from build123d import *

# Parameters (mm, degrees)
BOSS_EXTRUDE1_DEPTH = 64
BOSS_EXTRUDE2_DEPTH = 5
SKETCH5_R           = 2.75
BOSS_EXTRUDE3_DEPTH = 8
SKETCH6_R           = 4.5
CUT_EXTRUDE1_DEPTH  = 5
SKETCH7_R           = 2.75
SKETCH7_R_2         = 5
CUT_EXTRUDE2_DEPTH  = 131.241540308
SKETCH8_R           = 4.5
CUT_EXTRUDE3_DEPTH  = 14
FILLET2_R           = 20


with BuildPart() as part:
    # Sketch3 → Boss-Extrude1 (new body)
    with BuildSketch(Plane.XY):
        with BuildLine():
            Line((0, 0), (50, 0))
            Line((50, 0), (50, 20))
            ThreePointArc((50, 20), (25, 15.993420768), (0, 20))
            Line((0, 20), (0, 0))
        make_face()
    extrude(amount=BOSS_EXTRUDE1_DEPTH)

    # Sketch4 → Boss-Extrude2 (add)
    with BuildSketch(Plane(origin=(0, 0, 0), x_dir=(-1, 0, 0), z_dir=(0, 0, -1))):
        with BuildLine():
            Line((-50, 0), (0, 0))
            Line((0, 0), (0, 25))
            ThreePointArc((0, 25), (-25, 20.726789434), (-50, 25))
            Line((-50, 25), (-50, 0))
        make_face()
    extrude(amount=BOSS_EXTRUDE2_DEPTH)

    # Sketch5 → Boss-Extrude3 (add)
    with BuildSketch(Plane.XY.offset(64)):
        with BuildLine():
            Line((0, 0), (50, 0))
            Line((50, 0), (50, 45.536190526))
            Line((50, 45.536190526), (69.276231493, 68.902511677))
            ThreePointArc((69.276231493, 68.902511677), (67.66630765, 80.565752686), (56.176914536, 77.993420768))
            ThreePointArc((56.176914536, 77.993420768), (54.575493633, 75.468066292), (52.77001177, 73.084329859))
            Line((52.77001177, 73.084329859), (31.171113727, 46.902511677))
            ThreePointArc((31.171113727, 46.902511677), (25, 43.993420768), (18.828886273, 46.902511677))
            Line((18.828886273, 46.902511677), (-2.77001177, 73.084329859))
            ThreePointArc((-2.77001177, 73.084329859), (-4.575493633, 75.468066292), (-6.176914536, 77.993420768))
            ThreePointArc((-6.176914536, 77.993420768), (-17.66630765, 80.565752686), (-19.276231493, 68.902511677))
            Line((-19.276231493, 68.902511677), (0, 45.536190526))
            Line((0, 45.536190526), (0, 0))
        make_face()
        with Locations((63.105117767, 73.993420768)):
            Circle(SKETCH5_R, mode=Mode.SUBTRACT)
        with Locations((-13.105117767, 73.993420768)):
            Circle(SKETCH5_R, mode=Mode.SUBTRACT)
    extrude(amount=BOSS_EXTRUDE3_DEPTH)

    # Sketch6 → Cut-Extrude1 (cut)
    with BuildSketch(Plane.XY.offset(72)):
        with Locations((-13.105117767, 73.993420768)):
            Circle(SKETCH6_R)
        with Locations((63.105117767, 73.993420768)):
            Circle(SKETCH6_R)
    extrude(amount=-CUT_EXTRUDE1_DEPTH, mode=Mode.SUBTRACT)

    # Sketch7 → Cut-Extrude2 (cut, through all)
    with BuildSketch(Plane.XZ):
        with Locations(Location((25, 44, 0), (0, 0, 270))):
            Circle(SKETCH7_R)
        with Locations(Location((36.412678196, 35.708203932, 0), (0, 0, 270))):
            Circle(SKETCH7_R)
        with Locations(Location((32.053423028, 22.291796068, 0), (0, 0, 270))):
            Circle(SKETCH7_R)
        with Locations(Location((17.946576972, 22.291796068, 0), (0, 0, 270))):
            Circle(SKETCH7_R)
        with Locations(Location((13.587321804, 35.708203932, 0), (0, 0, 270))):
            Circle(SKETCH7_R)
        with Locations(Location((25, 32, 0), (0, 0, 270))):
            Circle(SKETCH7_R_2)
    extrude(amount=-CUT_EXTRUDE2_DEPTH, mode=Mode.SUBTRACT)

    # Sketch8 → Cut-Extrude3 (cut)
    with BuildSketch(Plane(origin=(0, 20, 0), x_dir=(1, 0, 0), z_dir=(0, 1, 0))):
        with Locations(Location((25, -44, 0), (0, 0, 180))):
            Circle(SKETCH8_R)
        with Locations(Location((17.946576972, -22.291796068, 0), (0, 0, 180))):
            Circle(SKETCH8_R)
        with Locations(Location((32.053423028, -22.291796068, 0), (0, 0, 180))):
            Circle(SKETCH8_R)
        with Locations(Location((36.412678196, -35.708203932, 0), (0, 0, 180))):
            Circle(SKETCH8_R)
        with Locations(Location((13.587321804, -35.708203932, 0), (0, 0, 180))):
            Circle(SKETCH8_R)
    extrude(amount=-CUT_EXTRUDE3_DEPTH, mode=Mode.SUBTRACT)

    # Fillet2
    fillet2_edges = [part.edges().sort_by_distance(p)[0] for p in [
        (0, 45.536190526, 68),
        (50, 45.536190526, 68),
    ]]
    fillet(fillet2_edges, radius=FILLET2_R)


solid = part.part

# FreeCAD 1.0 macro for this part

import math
import FreeCAD as App
import Part
import Sketcher
from FreeCAD import Vector


def edges_at(feature, points):
    """Names of the edges that pass closest to the given points."""
    edges = feature.Shape.Edges
    near = lambda p: min(range(len(edges)), key=lambda i: edges[i].distToShape(Part.Vertex(*p))[0])
    return sorted({f"Edge{near(p) + 1}" for p in points})

doc = App.newDocument("Part")
body = doc.addObject("PartDesign::Body", "Body")

# Sketch on XY plane
sketch1 = body.newObject("Sketcher::SketchObject", "Sketch")
sketch1.AttachmentSupport = (doc.getObject("XY_Plane"), [""])
sketch1.MapMode = "FlatFace"
sketch1.addGeometry([
    Part.LineSegment(Vector(0, 0, 0), Vector(50, 0, 0)),
    Part.LineSegment(Vector(50, 0, 0), Vector(50, 20, 0)),
    Part.ArcOfCircle(Part.Circle(Vector(25, 96, 0), Vector(0, 0, 1), 80), math.radians(-108), math.radians(-72)),
    Part.LineSegment(Vector(0, 20, 0), Vector(0, 0, 0)),
], False)
sketch1.addConstraint([
    Sketcher.Constraint("Coincident", 0, 2, 1, 1),
    Sketcher.Constraint("Coincident", 1, 2, 2, 2),
    Sketcher.Constraint("Coincident", 2, 1, 3, 1),
    Sketcher.Constraint("Coincident", 3, 2, 0, 1),
    Sketcher.Constraint("Horizontal", 0),
    Sketcher.Constraint("Vertical", 1),
    Sketcher.Constraint("Vertical", 3),
    Sketcher.Constraint("Coincident", 3, 2, -1, 1),
    Sketcher.Constraint("Horizontal", 1, 2, 2, 1),
    Sketcher.Constraint("Radius", 2, 80.0),
    Sketcher.Constraint("DistanceX", 0, 1, 0, 2, 50.0),
    Sketcher.Constraint("DistanceY", 1, 1, 1, 2, 20.0),
])
pad1 = body.newObject("PartDesign::Pad", "Pad")
pad1.Profile = sketch1
pad1.Length = 64

# Sketch on XY plane
sketch2 = body.newObject("Sketcher::SketchObject", "Sketch001")
sketch2.AttachmentSupport = (doc.getObject("XY_Plane"), [""])
sketch2.MapMode = "FlatFace"
sketch2.addGeometry([
    Part.LineSegment(Vector(50, 0, 0), Vector(0, 0, 0)),
    Part.LineSegment(Vector(0, 0, 0), Vector(0, 25, 0)),
    Part.ArcOfCircle(Part.Circle(Vector(25, 96, 0), Vector(0, 0, 1), 75), math.radians(-109), math.radians(-71)),
    Part.LineSegment(Vector(50, 25, 0), Vector(50, 0, 0)),
], False)
sketch2.addConstraint([
    Sketcher.Constraint("Coincident", 0, 2, 1, 1),
    Sketcher.Constraint("Coincident", 1, 2, 2, 1),
    Sketcher.Constraint("Coincident", 2, 2, 3, 1),
    Sketcher.Constraint("Coincident", 3, 2, 0, 1),
    Sketcher.Constraint("Horizontal", 0),
    Sketcher.Constraint("Vertical", 1),
    Sketcher.Constraint("Vertical", 3),
    Sketcher.Constraint("Coincident", 0, 2, -1, 1),
    Sketcher.Constraint("Horizontal", 1, 2, 2, 2),
    Sketcher.Constraint("DistanceX", 0, 2, 0, 1, 50.0),
    Sketcher.Constraint("DistanceY", 1, 1, 1, 2, 25.0),
    Sketcher.Constraint("Radius", 2, 75.266631),
])
pad2 = body.newObject("PartDesign::Pad", "Pad001")
pad2.Profile = sketch2
pad2.Length = 5
pad2.Reversed = True

# Sketch on XY plane
sketch3 = body.newObject("Sketcher::SketchObject", "Sketch002")
sketch3.AttachmentSupport = (doc.getObject("XY_Plane"), [""])
sketch3.MapMode = "FlatFace"
sketch3.AttachmentOffset = App.Placement(Vector(0, 0, 64), App.Rotation())
sketch3.addGeometry([
    Part.LineSegment(Vector(0, 0, 0), Vector(50, 0, 0)),  # 0
    Part.LineSegment(Vector(50, 0, 0), Vector(50, 45.5, 0)),  # 1
    Part.LineSegment(Vector(50, 45.5, 0), Vector(69.3, 68.9, 0)),  # 2
    Part.ArcOfCircle(Part.Circle(Vector(63.1, 74, 0), Vector(0, 0, 1), 8), math.radians(-40), math.radians(150)),  # 3
    Part.ArcOfCircle(Part.Circle(Vector(25, 96, 0), Vector(0, 0, 1), 36), math.radians(-39.52), math.radians(-30)),  # 4
    Part.LineSegment(Vector(52.8, 73.1, 0), Vector(31.2, 46.9, 0)),  # 5
    Part.ArcOfCircle(Part.Circle(Vector(25, 52, 0), Vector(0, 0, 1), 8), math.radians(-140), math.radians(-40)),  # 6
    Part.LineSegment(Vector(18.8, 46.9, 0), Vector(-2.8, 73.1, 0)),  # 7
    Part.ArcOfCircle(Part.Circle(Vector(25, 96, 0), Vector(0, 0, 1), 36), math.radians(-150), math.radians(-140.48)),  # 8
    Part.ArcOfCircle(Part.Circle(Vector(-13.1, 74, 0), Vector(0, 0, 1), 8), math.radians(30), math.radians(220)),  # 9
    Part.LineSegment(Vector(-19.3, 68.9, 0), Vector(0, 45.5, 0)),  # 10
    Part.LineSegment(Vector(0, 45.5, 0), Vector(0, 0, 0)),  # 11
    Part.Circle(Vector(-13.1, 74, 0), Vector(0, 0, 1), 2.8),  # 12
    Part.Circle(Vector(63.1, 74, 0), Vector(0, 0, 1), 2.8),  # 13
], False)
sketch3.addConstraint([
    Sketcher.Constraint("Coincident", 0, 2, 1, 1),
    Sketcher.Constraint("Coincident", 1, 2, 2, 1),
    Sketcher.Constraint("Tangent", 2, 2, 3, 1),
    Sketcher.Constraint("Tangent", 3, 2, 4, 2),
    Sketcher.Constraint("Tangent", 4, 1, 5, 1),
    Sketcher.Constraint("Tangent", 5, 2, 6, 2),
    Sketcher.Constraint("Tangent", 6, 1, 7, 1),
    Sketcher.Constraint("Tangent", 7, 2, 8, 2),
    Sketcher.Constraint("Tangent", 8, 1, 9, 1),
    Sketcher.Constraint("Tangent", 9, 2, 10, 1),
    Sketcher.Constraint("Coincident", 10, 2, 11, 1),
    Sketcher.Constraint("Coincident", 11, 2, 0, 1),
    Sketcher.Constraint("Horizontal", 0),
    Sketcher.Constraint("Vertical", 1),
    Sketcher.Constraint("Vertical", 11),
    Sketcher.Constraint("Coincident", 11, 2, -1, 1),
    Sketcher.Constraint("Coincident", 8, 3, 4, 3),
    Sketcher.Constraint("Coincident", 12, 3, 9, 3),
    Sketcher.Constraint("Coincident", 13, 3, 3, 3),
    Sketcher.Constraint("Equal", 3, 6),
    Sketcher.Constraint("Equal", 4, 8),
    Sketcher.Constraint("Equal", 6, 9),
    Sketcher.Constraint("Equal", 12, 13),
    Sketcher.Constraint("Parallel", 2, 5),
    Sketcher.Constraint("Parallel", 7, 10),
    Sketcher.Constraint("Horizontal", 3, 3, 9, 3),
    Sketcher.Constraint("Horizontal", 5, 2, 6, 1),
    Sketcher.Constraint("Horizontal", 1, 2, 10, 2),
    Sketcher.Constraint("Radius", 3, 8.0),
    Sketcher.Constraint("Radius", 4, 36.0),
    Sketcher.Constraint("Diameter", 12, 5.5),
    Sketcher.Constraint("DistanceX", 0, 1, 0, 2, 50.0),
    Sketcher.Constraint("DistanceY", 3, 3, 4, 3, 22.0),
    Sketcher.Constraint("DistanceY", 6, 3, 4, 3, 44.0),
    Sketcher.Constraint("DistanceY", 1, 1, 1, 2, 45.536191),
])
pad3 = body.newObject("PartDesign::Pad", "Pad002")
pad3.Profile = sketch3
pad3.Length = 8

# Sketch on XY plane
sketch4 = body.newObject("Sketcher::SketchObject", "Sketch003")
sketch4.AttachmentSupport = (doc.getObject("XY_Plane"), [""])
sketch4.MapMode = "FlatFace"
sketch4.AttachmentOffset = App.Placement(Vector(0, 0, 72), App.Rotation())
sketch4.addGeometry([
    Part.Circle(Vector(-13.1, 74, 0), Vector(0, 0, 1), 4.5),
    Part.Circle(Vector(63.1, 74, 0), Vector(0, 0, 1), 4.5),
], False)
sketch4.addConstraint([
    Sketcher.Constraint("Equal", 0, 1),
    Sketcher.Constraint("Horizontal", 0, 3, 1, 3),
    Sketcher.Constraint("Diameter", 0, 9.0),
    Sketcher.Constraint("DistanceY", -1, 1, 0, 3, 73.993421),
    Sketcher.Constraint("DistanceX", 0, 3, -1, 1, 13.105118),
    Sketcher.Constraint("DistanceX", -1, 1, 1, 3, 63.105118),
])
pocket1 = body.newObject("PartDesign::Pocket", "Pocket")
pocket1.Profile = sketch4
pocket1.Length = 5

# Sketch on XZ plane
sketch5 = body.newObject("Sketcher::SketchObject", "Sketch004")
sketch5.AttachmentSupport = (doc.getObject("XZ_Plane"), [""])
sketch5.MapMode = "FlatFace"
sketch5.addGeometry([
    Part.Circle(Vector(25, 44, 0), Vector(0, 0, 1), 2.8),  # 0
    Part.Circle(Vector(36.4, 35.7, 0), Vector(0, 0, 1), 2.8),  # 1
    Part.Circle(Vector(32.1, 22.3, 0), Vector(0, 0, 1), 2.8),  # 2
    Part.Circle(Vector(17.9, 22.3, 0), Vector(0, 0, 1), 2.8),  # 3
    Part.Circle(Vector(13.6, 35.7, 0), Vector(0, 0, 1), 2.8),  # 4
    Part.Circle(Vector(25, 32, 0), Vector(0, 0, 1), 5),  # 5
], False)
sketch5.addConstraint([
    Sketcher.Constraint("Equal", 0, 1),
    Sketcher.Constraint("Equal", 1, 2),
    Sketcher.Constraint("Equal", 2, 3),
    Sketcher.Constraint("Equal", 3, 4),
    Sketcher.Constraint("Horizontal", 2, 3, 3, 3),
    Sketcher.Constraint("Horizontal", 1, 3, 4, 3),
    Sketcher.Constraint("Vertical", 0, 3, 5, 3),
    Sketcher.Constraint("Diameter", 5, 10.0),
    Sketcher.Constraint("Diameter", 0, 5.5),
    Sketcher.Constraint("DistanceX", -1, 1, 0, 3, 25.0),
    Sketcher.Constraint("DistanceY", -1, 1, 0, 3, 44.0),
    Sketcher.Constraint("DistanceY", -1, 1, 5, 3, 32.0),
    Sketcher.Constraint("DistanceX", 3, 3, 1, 3, 18.466101),
    Sketcher.Constraint("DistanceX", 4, 3, 2, 3, 18.466101),
    Sketcher.Constraint("DistanceX", -1, 1, 1, 3, 36.412678),
    Sketcher.Constraint("DistanceX", -1, 1, 4, 3, 13.587322),
    Sketcher.Constraint("DistanceY", -1, 1, 1, 3, 35.708204),
    Sketcher.Constraint("DistanceY", -1, 1, 2, 3, 22.291796),
])
pocket2 = body.newObject("PartDesign::Pocket", "Pocket001")
pocket2.Profile = sketch5
pocket2.Type = "ThroughAll"

# Sketch on XZ plane
sketch6 = body.newObject("Sketcher::SketchObject", "Sketch005")
sketch6.AttachmentSupport = (doc.getObject("XZ_Plane"), [""])
sketch6.MapMode = "FlatFace"
sketch6.AttachmentOffset = App.Placement(Vector(0, 0, -20), App.Rotation())
sketch6.addGeometry([
    Part.Circle(Vector(25, 44, 0), Vector(0, 0, 1), 4.5),  # 0
    Part.Circle(Vector(17.9, 22.3, 0), Vector(0, 0, 1), 4.5),  # 1
    Part.Circle(Vector(32.1, 22.3, 0), Vector(0, 0, 1), 4.5),  # 2
    Part.Circle(Vector(36.4, 35.7, 0), Vector(0, 0, 1), 4.5),  # 3
    Part.Circle(Vector(13.6, 35.7, 0), Vector(0, 0, 1), 4.5),  # 4
], False)
sketch6.addConstraint([
    Sketcher.Constraint("Equal", 0, 1),
    Sketcher.Constraint("Equal", 1, 2),
    Sketcher.Constraint("Equal", 2, 3),
    Sketcher.Constraint("Equal", 3, 4),
    Sketcher.Constraint("Horizontal", 1, 3, 2, 3),
    Sketcher.Constraint("Horizontal", 3, 3, 4, 3),
    Sketcher.Constraint("Diameter", 0, 9.0),
    Sketcher.Constraint("DistanceX", -1, 1, 0, 3, 25.0),
    Sketcher.Constraint("DistanceY", -1, 1, 0, 3, 44.0),
    Sketcher.Constraint("DistanceX", 1, 3, 3, 3, 18.466101),
    Sketcher.Constraint("DistanceX", 4, 3, 2, 3, 18.466101),
    Sketcher.Constraint("DistanceX", -1, 1, 3, 3, 36.412678),
    Sketcher.Constraint("DistanceX", -1, 1, 4, 3, 13.587322),
    Sketcher.Constraint("DistanceY", -1, 1, 1, 3, 22.291796),
    Sketcher.Constraint("DistanceY", -1, 1, 3, 3, 35.708204),
])
pocket3 = body.newObject("PartDesign::Pocket", "Pocket002")
pocket3.Profile = sketch6
pocket3.Length = 14
pocket3.Reversed = True
doc.recompute()

fillet = body.newObject("PartDesign::Fillet", "Fillet")
fillet.Base = (pocket3, edges_at(pocket3, [(0, 45.536, 68), (50, 45.536, 68)]))
fillet.Radius = 20

doc.recompute()
